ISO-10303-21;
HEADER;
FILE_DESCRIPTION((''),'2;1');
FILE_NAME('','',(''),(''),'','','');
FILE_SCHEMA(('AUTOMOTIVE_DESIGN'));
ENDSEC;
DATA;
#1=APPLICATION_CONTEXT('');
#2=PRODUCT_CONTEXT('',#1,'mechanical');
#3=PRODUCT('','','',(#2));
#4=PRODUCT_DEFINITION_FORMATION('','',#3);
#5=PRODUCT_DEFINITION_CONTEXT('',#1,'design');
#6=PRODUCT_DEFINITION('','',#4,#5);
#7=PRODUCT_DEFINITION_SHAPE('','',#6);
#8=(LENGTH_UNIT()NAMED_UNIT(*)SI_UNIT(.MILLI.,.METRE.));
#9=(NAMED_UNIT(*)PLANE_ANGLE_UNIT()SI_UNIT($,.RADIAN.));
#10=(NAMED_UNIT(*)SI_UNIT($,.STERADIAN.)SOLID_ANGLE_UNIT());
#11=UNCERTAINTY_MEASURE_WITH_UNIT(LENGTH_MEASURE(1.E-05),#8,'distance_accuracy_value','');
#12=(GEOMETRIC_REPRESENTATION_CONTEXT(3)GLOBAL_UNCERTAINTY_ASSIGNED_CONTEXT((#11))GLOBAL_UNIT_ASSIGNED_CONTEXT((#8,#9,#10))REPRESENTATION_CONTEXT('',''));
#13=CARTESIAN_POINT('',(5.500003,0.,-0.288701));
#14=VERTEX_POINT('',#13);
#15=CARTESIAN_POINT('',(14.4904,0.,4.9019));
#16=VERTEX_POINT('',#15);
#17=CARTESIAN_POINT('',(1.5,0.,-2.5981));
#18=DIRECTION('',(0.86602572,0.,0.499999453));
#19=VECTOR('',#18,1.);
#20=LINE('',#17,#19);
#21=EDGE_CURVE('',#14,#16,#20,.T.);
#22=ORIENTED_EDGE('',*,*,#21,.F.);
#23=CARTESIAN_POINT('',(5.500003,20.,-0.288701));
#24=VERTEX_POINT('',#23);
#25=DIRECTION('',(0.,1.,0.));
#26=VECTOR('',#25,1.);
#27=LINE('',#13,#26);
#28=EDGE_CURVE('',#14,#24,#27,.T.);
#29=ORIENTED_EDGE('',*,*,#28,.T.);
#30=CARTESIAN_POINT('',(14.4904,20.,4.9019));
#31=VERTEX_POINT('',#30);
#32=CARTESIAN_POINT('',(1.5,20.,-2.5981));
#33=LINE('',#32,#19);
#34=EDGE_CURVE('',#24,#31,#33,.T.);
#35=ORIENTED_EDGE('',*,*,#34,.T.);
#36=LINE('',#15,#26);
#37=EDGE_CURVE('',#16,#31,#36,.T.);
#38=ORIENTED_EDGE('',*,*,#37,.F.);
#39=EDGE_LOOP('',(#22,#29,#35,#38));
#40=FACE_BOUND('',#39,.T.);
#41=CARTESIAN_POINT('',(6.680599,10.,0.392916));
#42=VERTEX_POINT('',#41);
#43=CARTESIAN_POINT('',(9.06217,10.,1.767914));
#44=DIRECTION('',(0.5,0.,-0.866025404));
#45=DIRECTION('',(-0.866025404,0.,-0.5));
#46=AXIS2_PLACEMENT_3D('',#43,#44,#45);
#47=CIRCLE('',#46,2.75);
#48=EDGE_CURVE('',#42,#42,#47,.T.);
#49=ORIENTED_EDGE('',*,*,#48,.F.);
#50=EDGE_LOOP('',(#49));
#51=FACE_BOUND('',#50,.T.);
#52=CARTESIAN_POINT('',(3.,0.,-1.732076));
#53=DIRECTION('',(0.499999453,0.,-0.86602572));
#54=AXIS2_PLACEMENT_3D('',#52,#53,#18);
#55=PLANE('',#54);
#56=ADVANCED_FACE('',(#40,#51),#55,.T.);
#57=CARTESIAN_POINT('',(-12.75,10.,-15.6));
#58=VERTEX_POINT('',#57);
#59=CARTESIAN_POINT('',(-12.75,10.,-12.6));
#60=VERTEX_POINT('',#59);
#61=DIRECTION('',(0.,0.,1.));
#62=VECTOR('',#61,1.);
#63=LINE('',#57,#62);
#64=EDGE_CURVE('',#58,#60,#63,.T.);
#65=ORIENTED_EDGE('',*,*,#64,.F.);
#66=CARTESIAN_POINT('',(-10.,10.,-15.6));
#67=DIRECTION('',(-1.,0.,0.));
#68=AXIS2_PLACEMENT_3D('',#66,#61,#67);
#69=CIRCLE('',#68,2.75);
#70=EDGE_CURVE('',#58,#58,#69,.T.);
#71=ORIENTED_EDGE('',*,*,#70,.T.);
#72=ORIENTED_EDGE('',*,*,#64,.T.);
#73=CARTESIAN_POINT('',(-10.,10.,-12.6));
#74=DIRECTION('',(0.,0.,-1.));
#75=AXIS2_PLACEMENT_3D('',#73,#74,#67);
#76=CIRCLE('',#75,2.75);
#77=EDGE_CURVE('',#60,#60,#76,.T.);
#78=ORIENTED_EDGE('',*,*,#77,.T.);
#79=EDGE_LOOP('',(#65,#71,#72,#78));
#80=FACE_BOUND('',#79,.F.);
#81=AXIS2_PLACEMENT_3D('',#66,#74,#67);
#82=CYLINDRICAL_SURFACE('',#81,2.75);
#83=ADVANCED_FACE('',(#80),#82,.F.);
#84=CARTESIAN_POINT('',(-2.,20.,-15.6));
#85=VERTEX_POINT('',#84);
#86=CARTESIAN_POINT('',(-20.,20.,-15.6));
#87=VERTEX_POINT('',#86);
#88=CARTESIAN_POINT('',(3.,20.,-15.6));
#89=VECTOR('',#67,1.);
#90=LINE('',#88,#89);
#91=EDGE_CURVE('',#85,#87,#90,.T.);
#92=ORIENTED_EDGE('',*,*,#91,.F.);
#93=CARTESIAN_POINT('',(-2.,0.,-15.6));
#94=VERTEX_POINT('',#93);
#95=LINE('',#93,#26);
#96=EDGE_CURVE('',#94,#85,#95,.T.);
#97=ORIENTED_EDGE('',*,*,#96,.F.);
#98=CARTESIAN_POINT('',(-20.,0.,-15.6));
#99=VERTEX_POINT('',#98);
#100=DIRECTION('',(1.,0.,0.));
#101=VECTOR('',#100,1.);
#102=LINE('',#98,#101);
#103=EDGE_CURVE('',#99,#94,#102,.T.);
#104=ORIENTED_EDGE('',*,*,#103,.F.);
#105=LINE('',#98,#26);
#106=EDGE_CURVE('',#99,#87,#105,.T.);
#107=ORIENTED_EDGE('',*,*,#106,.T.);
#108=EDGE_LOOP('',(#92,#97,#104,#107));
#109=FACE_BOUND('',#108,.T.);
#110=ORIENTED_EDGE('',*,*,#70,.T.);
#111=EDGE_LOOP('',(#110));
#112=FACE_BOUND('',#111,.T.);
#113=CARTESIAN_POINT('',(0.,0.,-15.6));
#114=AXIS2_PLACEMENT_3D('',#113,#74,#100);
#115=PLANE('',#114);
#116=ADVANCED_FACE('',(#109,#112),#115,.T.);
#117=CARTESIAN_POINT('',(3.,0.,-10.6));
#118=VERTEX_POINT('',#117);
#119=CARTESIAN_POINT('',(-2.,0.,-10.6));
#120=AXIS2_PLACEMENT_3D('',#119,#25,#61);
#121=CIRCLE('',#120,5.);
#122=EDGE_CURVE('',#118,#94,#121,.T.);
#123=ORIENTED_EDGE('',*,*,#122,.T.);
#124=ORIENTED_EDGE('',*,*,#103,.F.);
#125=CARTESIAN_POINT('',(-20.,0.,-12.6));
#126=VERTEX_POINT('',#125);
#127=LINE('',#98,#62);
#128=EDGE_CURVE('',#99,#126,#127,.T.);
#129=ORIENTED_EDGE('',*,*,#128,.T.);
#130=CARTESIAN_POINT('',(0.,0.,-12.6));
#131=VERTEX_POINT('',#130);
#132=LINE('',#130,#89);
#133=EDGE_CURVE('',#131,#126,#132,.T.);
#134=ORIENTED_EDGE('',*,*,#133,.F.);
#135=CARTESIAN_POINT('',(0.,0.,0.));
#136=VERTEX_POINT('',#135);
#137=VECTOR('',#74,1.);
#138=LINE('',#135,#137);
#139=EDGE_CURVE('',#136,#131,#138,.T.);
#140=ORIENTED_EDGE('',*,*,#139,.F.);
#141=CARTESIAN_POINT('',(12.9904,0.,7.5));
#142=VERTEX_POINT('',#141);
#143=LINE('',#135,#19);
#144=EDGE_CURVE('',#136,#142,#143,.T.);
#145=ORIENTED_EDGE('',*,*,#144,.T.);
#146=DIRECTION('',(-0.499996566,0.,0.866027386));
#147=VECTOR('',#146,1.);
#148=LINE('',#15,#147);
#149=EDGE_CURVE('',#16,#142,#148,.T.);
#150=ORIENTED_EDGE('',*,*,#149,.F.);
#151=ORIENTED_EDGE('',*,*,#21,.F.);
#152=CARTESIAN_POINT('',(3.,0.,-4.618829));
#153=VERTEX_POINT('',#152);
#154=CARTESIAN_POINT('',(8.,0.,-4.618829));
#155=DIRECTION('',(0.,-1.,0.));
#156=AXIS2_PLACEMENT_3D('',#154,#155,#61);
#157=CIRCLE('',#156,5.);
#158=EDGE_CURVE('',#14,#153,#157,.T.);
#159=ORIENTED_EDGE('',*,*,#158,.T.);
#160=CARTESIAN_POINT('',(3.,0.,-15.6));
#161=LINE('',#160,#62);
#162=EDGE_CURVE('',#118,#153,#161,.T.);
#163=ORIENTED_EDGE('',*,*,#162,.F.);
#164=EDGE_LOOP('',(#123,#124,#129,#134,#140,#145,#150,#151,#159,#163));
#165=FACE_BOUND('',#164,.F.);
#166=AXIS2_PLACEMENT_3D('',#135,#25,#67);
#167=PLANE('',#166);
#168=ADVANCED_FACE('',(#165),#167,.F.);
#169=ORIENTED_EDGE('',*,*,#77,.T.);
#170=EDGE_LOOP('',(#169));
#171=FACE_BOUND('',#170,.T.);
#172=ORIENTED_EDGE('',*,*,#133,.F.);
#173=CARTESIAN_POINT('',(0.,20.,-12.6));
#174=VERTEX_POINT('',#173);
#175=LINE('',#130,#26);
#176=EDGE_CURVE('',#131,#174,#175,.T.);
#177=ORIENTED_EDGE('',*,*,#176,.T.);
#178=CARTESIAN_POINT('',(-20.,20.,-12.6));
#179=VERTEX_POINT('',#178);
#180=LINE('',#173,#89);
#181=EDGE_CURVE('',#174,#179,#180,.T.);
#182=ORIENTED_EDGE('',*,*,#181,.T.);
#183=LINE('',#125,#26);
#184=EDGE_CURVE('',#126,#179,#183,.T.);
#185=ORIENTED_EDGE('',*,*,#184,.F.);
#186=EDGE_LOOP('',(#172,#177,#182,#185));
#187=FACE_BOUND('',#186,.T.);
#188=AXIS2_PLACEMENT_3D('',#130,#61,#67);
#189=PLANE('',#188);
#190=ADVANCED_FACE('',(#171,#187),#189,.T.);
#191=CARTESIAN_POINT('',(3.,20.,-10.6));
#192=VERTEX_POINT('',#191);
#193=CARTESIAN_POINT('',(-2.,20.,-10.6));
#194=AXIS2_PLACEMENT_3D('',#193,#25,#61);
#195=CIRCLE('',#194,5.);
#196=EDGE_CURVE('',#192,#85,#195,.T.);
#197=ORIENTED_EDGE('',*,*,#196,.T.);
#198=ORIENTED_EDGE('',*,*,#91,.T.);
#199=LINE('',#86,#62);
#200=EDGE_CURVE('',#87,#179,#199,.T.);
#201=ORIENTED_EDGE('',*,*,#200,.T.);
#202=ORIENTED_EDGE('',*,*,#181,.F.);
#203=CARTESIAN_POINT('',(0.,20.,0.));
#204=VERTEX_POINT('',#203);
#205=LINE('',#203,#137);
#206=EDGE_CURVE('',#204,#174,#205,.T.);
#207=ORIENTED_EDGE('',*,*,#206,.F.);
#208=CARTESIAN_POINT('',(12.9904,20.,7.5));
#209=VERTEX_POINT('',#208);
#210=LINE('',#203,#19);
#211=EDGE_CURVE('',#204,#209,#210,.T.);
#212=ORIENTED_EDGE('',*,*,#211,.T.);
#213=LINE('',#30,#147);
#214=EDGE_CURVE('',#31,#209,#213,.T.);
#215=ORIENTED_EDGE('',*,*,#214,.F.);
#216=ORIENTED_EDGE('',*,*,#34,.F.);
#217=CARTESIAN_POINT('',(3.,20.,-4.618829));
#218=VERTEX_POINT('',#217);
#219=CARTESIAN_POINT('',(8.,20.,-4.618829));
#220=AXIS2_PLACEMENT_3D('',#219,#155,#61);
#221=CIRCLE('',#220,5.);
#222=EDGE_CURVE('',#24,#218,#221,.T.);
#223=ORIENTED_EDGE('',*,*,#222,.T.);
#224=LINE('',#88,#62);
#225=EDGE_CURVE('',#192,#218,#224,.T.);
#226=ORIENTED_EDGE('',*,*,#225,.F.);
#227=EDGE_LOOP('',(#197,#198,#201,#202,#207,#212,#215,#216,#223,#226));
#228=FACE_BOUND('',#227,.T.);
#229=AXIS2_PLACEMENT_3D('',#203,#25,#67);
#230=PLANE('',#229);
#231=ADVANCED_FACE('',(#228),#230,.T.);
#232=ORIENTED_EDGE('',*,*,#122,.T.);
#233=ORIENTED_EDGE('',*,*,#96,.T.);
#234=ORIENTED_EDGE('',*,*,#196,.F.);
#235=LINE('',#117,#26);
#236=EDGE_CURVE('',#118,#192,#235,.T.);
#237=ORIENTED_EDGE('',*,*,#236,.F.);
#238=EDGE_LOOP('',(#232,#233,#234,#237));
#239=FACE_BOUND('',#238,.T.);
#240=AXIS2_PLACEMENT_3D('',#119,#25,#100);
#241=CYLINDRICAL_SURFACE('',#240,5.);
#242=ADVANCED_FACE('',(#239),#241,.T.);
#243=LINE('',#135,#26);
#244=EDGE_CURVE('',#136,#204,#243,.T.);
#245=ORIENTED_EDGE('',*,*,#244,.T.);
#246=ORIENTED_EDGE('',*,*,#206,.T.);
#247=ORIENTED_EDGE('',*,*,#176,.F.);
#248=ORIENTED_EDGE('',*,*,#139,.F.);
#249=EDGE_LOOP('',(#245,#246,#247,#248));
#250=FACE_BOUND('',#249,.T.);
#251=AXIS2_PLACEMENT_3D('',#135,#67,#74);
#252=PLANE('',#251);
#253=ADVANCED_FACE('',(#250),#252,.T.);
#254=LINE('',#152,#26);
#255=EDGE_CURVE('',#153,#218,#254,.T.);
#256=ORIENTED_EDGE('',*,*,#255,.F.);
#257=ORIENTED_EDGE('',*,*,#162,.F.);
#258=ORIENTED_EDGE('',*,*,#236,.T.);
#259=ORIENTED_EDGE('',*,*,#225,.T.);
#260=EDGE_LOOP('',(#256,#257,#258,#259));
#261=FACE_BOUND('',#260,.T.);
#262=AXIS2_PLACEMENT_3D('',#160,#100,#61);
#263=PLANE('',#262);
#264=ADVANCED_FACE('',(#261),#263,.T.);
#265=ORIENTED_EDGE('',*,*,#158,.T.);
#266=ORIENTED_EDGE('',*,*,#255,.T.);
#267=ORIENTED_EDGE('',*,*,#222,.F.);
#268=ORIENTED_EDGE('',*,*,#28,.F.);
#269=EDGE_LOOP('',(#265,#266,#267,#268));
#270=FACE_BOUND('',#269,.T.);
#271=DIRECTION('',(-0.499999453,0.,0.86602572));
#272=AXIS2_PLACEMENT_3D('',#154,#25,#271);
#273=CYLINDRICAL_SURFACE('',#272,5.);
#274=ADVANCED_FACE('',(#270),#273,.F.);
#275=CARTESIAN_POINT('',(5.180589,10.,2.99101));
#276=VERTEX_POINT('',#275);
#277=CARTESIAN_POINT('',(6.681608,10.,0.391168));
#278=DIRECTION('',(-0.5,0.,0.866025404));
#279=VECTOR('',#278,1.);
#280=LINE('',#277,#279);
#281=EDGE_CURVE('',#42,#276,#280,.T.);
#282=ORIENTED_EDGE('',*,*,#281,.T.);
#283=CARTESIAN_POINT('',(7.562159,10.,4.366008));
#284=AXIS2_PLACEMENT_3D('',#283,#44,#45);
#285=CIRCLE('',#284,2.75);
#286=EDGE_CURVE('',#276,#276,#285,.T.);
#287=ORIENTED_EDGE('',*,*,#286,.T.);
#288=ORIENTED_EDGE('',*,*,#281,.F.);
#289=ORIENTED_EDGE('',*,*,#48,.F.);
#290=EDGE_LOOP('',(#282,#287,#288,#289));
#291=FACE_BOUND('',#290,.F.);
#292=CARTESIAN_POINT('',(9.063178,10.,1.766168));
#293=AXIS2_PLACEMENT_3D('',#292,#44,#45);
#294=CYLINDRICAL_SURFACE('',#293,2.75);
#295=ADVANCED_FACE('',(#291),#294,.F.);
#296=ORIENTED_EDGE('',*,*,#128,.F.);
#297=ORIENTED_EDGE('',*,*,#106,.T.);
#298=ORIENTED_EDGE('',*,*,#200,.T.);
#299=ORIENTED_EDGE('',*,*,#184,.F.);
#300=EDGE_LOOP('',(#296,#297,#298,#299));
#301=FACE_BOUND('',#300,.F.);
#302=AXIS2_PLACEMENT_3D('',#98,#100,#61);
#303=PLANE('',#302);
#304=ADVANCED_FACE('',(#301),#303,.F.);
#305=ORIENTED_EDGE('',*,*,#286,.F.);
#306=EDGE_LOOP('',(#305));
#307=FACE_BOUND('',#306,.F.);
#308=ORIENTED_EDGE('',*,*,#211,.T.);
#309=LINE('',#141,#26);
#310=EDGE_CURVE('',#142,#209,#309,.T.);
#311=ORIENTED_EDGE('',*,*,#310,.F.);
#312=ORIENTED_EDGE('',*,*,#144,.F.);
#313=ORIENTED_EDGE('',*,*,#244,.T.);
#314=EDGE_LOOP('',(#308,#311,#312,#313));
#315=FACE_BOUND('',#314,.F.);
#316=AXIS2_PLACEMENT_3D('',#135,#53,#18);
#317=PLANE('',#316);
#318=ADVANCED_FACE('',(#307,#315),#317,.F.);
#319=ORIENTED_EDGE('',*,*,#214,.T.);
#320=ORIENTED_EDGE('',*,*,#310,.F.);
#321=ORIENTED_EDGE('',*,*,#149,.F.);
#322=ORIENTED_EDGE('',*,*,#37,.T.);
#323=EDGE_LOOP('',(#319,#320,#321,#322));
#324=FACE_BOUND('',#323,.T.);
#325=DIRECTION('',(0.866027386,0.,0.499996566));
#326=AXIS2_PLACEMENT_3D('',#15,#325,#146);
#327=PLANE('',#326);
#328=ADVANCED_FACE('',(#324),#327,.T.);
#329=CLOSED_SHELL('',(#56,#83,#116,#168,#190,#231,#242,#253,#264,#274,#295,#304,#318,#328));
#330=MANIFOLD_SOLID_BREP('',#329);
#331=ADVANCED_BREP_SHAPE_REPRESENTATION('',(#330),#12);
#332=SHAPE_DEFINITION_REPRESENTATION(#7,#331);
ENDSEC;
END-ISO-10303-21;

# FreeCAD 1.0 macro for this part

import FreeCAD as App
import Part
import Sketcher

V = App.Vector
Q = App.Units.Quantity


def edges_at(feature, points):
    """Names of the edges that pass closest to the given points."""
    edges = feature.Shape.Edges
    near = lambda p: min(range(len(edges)), key=lambda i: edges[i].distToShape(Part.Vertex(*p))[0])
    return sorted({f"Edge{near(p) + 1}" for p in points})


def add_polygon(sketch, points):
    """Adds a closed chain of lines whose ends are joined by coincident constraints."""
    first, n = sketch.GeometryCount, len(points)
    for a, b in zip(points, points[1:] + points[:1]):
        sketch.addGeometry(Part.LineSegment(App.Vector(*a, 0), App.Vector(*b, 0)), False)
    for i in range(n):
        sketch.addConstraint(Sketcher.Constraint("Coincident", first + i, 2, first + (i + 1) % n, 1))

doc = App.newDocument("Part")
body = doc.addObject("PartDesign::Body", "Body")

sketch1 = body.newObject("Sketcher::SketchObject", "Sketch")
sketch1.AttachmentSupport = (doc.getObject("XZ_Plane"), [""])
sketch1.MapMode = "FlatFace"
add_polygon(sketch1, [(14.5, 4.9), (3, -1.7), (3, -15.6), (-20, -15.6), (-20, -12.6), (0, -12.6), (0, 0), (13, 7.5)])
sketch1.addConstraint(Sketcher.Constraint("Vertical", 1))
sketch1.addConstraint(Sketcher.Constraint("Horizontal", 2))
sketch1.addConstraint(Sketcher.Constraint("Vertical", 3))
sketch1.addConstraint(Sketcher.Constraint("Horizontal", 4))
sketch1.addConstraint(Sketcher.Constraint("Vertical", 5))
sketch1.addConstraint(Sketcher.Constraint("Coincident", 5, 2, -1, 1))
sketch1.addConstraint(Sketcher.Constraint("Parallel", 0, 6))
sketch1.addConstraint(Sketcher.Constraint("Perpendicular", 6, 7))
sketch1.addConstraint(Sketcher.Constraint("DistanceX", 4, 1, 4, 2, 20.0))
sketch1.addConstraint(Sketcher.Constraint("DistanceY", 3, 1, 3, 2, 3.0))
sketch1.addConstraint(Sketcher.Constraint("Angle", 0, Q("-150 deg")))
sketch1.addConstraint(Sketcher.Constraint("Distance", 6, 15.0))
sketch1.addConstraint(Sketcher.Constraint("Distance", 7, 3.0))
sketch1.addConstraint(Sketcher.Constraint("DistanceY", 5, 1, 5, 2, 12.6))
sketch1.addConstraint(Sketcher.Constraint("DistanceX", -1, 1, 0, 2, 3.0))
pad1 = body.newObject("PartDesign::Pad", "Pad")
pad1.Profile = sketch1
pad1.Length = 20
pad1.Reversed = True

sketch2 = body.newObject("Sketcher::SketchObject", "Sketch001")
sketch2.AttachmentSupport = (doc.getObject("XY_Plane"), [""])
sketch2.MapMode = "FlatFace"
sketch2.AttachmentOffset = App.Placement(V(0, 0, -15.6), App.Rotation())
sketch2.addGeometry(Part.Circle(V(-10, 10, 0), V(0, 0, 1), 2.8), False)
sketch2.addConstraint(Sketcher.Constraint("Diameter", 0, 5.5))
sketch2.addConstraint(Sketcher.Constraint("DistanceX", 0, 3, -1, 1, 10.0))
sketch2.addConstraint(Sketcher.Constraint("DistanceY", -1, 1, 0, 3, 10.0))
pocket1 = body.newObject("PartDesign::Pocket", "Pocket")
pocket1.Profile = sketch2
pocket1.Length = 3
pocket1.Reversed = True

sketch3 = body.newObject("Sketcher::SketchObject", "Sketch002")
sketch3.Placement = App.Placement(V(3, 0, -1.7321), App.Rotation(V(-0.866025404, 0, -0.5), V(0, 1, 0), V(0.5, 0, -0.866025404), "ZXY"))
sketch3.addGeometry(Part.Circle(V(-7, 10, 0), V(0, 0, 1), 2.8), False)
sketch3.addConstraint(Sketcher.Constraint("Diameter", 0, 5.5))
sketch3.addConstraint(Sketcher.Constraint("DistanceX", 0, 3, -1, 1, 7.0))
sketch3.addConstraint(Sketcher.Constraint("DistanceY", -1, 1, 0, 3, 10.0))
pocket2 = body.newObject("PartDesign::Pocket", "Pocket001")
pocket2.Profile = sketch3
pocket2.Length = 3
doc.recompute()

fillet = body.newObject("PartDesign::Fillet", "Fillet")
fillet.Base = (pocket2, edges_at(pocket2, [(3, 10, -1.732), (3, 10, -15.6)]))
fillet.Radius = 5

doc.recompute()
